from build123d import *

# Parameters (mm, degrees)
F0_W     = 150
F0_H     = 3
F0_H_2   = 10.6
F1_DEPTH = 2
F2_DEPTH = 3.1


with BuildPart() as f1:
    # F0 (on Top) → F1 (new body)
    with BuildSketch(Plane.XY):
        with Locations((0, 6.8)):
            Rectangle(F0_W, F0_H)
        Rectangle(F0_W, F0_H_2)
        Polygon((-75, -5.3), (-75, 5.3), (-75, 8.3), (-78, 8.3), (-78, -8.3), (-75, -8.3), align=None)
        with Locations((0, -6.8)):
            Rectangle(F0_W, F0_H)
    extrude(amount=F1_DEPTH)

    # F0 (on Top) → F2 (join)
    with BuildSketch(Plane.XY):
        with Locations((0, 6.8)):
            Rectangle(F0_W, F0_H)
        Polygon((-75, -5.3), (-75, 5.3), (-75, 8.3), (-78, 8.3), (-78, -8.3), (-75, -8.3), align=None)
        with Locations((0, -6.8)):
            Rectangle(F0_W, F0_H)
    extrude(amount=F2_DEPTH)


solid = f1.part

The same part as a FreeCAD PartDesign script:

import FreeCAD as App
import Part
import Sketcher
from FreeCAD import Vector
Q = App.Units.Quantity

doc = App.newDocument("Part")
body = doc.addObject("PartDesign::Body", "Body")

# Sketch on XY plane
sketch1 = doc.addObject("Sketcher::SketchObject", "Sketch")
body.addObject(sketch1)
sketch1.AttachmentSupport = (doc.XY_Plane, [""])
sketch1.MapMode = "FlatFace"
sketch1.addGeometry([
    Part.LineSegment(Vector(75, 8, 0), Vector(-78, 8, 0)),
    Part.LineSegment(Vector(-78, 8, 0), Vector(-78, -8, 0)),
    Part.LineSegment(Vector(-78, -8, 0), Vector(75, -8, 0)),
    Part.LineSegment(Vector(75, -8, 0), Vector(75, 8, 0)),
], False)
sketch1.addConstraint([
    Sketcher.Constraint("Coincident", 0, 2, 1, 1),
    Sketcher.Constraint("Coincident", 1, 2, 2, 1),
    Sketcher.Constraint("Coincident", 2, 2, 3, 1),
    Sketcher.Constraint("Coincident", 3, 2, 0, 1),
    Sketcher.Constraint("Horizontal", 0),
    Sketcher.Constraint("Vertical", 1),
    Sketcher.Constraint("Horizontal", 2),
    Sketcher.Constraint("Vertical", 3),
    Sketcher.Constraint("DistanceX", 0, 2, 0, 1, Q("153 mm")),
    Sketcher.Constraint("DistanceY", 1, 2, 1, 1, Q("16.6 mm")),
    Sketcher.Constraint("DistanceX", 0, 2, -1, 1, Q("78 mm")),
    Sketcher.Constraint("DistanceY", -1, 1, 0, 2, Q("8.3 mm")),
])
pad1 = doc.addObject("PartDesign::Pad", "Pad")
body.addObject(pad1)
pad1.Profile = sketch1
pad1.Length = 2

# Sketch on XY plane
sketch2 = doc.addObject("Sketcher::SketchObject", "Sketch001")
body.addObject(sketch2)
sketch2.AttachmentSupport = (doc.XY_Plane, [""])
sketch2.MapMode = "FlatFace"
sketch2.addGeometry([
    Part.LineSegment(Vector(-75, 5.3, 0), Vector(75, 5.3, 0)),  # 0
    Part.LineSegment(Vector(75, 5.3, 0), Vector(75, 8.3, 0)),  # 1
    Part.LineSegment(Vector(75, 8.3, 0), Vector(-78, 8.3, 0)),  # 2
    Part.LineSegment(Vector(-78, 8.3, 0), Vector(-78, -8.3, 0)),  # 3
    Part.LineSegment(Vector(-78, -8.3, 0), Vector(75, -8.3, 0)),  # 4
    Part.LineSegment(Vector(75, -8.3, 0), Vector(75, -5.3, 0)),  # 5
    Part.LineSegment(Vector(75, -5.3, 0), Vector(-75, -5.3, 0)),  # 6
    Part.LineSegment(Vector(-75, -5.3, 0), Vector(-75, 5.3, 0)),  # 7
], False)
sketch2.addConstraint([
    Sketcher.Constraint("Coincident", 0, 2, 1, 1),
    Sketcher.Constraint("Coincident", 1, 2, 2, 1),
    Sketcher.Constraint("Coincident", 2, 2, 3, 1),
    Sketcher.Constraint("Coincident", 3, 2, 4, 1),
    Sketcher.Constraint("Coincident", 4, 2, 5, 1),
    Sketcher.Constraint("Coincident", 5, 2, 6, 1),
    Sketcher.Constraint("Coincident", 6, 2, 7, 1),
    Sketcher.Constraint("Coincident", 7, 2, 0, 1),
    Sketcher.Constraint("Horizontal", 0),
    Sketcher.Constraint("Vertical", 1),
    Sketcher.Constraint("Horizontal", 2),
    Sketcher.Constraint("Vertical", 3),
    Sketcher.Constraint("Horizontal", 4),
    Sketcher.Constraint("Vertical", 5),
    Sketcher.Constraint("Horizontal", 6),
    Sketcher.Constraint("Vertical", 7),
    Sketcher.Constraint("Symmetric", 0, 2, 6, 2, -1, 1),
    Sketcher.Constraint("Symmetric", 1, 2, 4, 2, -1),
    Sketcher.Constraint("DistanceX", 0, 1, 0, 2, Q("150 mm")),
    Sketcher.Constraint("DistanceX", 2, 2, 2, 1, Q("153 mm")),
    Sketcher.Constraint("DistanceY", 1, 1, 1, 2, Q("3 mm")),
    Sketcher.Constraint("DistanceY", 3, 2, 3, 1, Q("16.6 mm")),
])
pad2 = doc.addObject("PartDesign::Pad", "Pad001")
body.addObject(pad2)
pad2.Profile = sketch2
pad2.Length = 3.1

doc.recompute()
